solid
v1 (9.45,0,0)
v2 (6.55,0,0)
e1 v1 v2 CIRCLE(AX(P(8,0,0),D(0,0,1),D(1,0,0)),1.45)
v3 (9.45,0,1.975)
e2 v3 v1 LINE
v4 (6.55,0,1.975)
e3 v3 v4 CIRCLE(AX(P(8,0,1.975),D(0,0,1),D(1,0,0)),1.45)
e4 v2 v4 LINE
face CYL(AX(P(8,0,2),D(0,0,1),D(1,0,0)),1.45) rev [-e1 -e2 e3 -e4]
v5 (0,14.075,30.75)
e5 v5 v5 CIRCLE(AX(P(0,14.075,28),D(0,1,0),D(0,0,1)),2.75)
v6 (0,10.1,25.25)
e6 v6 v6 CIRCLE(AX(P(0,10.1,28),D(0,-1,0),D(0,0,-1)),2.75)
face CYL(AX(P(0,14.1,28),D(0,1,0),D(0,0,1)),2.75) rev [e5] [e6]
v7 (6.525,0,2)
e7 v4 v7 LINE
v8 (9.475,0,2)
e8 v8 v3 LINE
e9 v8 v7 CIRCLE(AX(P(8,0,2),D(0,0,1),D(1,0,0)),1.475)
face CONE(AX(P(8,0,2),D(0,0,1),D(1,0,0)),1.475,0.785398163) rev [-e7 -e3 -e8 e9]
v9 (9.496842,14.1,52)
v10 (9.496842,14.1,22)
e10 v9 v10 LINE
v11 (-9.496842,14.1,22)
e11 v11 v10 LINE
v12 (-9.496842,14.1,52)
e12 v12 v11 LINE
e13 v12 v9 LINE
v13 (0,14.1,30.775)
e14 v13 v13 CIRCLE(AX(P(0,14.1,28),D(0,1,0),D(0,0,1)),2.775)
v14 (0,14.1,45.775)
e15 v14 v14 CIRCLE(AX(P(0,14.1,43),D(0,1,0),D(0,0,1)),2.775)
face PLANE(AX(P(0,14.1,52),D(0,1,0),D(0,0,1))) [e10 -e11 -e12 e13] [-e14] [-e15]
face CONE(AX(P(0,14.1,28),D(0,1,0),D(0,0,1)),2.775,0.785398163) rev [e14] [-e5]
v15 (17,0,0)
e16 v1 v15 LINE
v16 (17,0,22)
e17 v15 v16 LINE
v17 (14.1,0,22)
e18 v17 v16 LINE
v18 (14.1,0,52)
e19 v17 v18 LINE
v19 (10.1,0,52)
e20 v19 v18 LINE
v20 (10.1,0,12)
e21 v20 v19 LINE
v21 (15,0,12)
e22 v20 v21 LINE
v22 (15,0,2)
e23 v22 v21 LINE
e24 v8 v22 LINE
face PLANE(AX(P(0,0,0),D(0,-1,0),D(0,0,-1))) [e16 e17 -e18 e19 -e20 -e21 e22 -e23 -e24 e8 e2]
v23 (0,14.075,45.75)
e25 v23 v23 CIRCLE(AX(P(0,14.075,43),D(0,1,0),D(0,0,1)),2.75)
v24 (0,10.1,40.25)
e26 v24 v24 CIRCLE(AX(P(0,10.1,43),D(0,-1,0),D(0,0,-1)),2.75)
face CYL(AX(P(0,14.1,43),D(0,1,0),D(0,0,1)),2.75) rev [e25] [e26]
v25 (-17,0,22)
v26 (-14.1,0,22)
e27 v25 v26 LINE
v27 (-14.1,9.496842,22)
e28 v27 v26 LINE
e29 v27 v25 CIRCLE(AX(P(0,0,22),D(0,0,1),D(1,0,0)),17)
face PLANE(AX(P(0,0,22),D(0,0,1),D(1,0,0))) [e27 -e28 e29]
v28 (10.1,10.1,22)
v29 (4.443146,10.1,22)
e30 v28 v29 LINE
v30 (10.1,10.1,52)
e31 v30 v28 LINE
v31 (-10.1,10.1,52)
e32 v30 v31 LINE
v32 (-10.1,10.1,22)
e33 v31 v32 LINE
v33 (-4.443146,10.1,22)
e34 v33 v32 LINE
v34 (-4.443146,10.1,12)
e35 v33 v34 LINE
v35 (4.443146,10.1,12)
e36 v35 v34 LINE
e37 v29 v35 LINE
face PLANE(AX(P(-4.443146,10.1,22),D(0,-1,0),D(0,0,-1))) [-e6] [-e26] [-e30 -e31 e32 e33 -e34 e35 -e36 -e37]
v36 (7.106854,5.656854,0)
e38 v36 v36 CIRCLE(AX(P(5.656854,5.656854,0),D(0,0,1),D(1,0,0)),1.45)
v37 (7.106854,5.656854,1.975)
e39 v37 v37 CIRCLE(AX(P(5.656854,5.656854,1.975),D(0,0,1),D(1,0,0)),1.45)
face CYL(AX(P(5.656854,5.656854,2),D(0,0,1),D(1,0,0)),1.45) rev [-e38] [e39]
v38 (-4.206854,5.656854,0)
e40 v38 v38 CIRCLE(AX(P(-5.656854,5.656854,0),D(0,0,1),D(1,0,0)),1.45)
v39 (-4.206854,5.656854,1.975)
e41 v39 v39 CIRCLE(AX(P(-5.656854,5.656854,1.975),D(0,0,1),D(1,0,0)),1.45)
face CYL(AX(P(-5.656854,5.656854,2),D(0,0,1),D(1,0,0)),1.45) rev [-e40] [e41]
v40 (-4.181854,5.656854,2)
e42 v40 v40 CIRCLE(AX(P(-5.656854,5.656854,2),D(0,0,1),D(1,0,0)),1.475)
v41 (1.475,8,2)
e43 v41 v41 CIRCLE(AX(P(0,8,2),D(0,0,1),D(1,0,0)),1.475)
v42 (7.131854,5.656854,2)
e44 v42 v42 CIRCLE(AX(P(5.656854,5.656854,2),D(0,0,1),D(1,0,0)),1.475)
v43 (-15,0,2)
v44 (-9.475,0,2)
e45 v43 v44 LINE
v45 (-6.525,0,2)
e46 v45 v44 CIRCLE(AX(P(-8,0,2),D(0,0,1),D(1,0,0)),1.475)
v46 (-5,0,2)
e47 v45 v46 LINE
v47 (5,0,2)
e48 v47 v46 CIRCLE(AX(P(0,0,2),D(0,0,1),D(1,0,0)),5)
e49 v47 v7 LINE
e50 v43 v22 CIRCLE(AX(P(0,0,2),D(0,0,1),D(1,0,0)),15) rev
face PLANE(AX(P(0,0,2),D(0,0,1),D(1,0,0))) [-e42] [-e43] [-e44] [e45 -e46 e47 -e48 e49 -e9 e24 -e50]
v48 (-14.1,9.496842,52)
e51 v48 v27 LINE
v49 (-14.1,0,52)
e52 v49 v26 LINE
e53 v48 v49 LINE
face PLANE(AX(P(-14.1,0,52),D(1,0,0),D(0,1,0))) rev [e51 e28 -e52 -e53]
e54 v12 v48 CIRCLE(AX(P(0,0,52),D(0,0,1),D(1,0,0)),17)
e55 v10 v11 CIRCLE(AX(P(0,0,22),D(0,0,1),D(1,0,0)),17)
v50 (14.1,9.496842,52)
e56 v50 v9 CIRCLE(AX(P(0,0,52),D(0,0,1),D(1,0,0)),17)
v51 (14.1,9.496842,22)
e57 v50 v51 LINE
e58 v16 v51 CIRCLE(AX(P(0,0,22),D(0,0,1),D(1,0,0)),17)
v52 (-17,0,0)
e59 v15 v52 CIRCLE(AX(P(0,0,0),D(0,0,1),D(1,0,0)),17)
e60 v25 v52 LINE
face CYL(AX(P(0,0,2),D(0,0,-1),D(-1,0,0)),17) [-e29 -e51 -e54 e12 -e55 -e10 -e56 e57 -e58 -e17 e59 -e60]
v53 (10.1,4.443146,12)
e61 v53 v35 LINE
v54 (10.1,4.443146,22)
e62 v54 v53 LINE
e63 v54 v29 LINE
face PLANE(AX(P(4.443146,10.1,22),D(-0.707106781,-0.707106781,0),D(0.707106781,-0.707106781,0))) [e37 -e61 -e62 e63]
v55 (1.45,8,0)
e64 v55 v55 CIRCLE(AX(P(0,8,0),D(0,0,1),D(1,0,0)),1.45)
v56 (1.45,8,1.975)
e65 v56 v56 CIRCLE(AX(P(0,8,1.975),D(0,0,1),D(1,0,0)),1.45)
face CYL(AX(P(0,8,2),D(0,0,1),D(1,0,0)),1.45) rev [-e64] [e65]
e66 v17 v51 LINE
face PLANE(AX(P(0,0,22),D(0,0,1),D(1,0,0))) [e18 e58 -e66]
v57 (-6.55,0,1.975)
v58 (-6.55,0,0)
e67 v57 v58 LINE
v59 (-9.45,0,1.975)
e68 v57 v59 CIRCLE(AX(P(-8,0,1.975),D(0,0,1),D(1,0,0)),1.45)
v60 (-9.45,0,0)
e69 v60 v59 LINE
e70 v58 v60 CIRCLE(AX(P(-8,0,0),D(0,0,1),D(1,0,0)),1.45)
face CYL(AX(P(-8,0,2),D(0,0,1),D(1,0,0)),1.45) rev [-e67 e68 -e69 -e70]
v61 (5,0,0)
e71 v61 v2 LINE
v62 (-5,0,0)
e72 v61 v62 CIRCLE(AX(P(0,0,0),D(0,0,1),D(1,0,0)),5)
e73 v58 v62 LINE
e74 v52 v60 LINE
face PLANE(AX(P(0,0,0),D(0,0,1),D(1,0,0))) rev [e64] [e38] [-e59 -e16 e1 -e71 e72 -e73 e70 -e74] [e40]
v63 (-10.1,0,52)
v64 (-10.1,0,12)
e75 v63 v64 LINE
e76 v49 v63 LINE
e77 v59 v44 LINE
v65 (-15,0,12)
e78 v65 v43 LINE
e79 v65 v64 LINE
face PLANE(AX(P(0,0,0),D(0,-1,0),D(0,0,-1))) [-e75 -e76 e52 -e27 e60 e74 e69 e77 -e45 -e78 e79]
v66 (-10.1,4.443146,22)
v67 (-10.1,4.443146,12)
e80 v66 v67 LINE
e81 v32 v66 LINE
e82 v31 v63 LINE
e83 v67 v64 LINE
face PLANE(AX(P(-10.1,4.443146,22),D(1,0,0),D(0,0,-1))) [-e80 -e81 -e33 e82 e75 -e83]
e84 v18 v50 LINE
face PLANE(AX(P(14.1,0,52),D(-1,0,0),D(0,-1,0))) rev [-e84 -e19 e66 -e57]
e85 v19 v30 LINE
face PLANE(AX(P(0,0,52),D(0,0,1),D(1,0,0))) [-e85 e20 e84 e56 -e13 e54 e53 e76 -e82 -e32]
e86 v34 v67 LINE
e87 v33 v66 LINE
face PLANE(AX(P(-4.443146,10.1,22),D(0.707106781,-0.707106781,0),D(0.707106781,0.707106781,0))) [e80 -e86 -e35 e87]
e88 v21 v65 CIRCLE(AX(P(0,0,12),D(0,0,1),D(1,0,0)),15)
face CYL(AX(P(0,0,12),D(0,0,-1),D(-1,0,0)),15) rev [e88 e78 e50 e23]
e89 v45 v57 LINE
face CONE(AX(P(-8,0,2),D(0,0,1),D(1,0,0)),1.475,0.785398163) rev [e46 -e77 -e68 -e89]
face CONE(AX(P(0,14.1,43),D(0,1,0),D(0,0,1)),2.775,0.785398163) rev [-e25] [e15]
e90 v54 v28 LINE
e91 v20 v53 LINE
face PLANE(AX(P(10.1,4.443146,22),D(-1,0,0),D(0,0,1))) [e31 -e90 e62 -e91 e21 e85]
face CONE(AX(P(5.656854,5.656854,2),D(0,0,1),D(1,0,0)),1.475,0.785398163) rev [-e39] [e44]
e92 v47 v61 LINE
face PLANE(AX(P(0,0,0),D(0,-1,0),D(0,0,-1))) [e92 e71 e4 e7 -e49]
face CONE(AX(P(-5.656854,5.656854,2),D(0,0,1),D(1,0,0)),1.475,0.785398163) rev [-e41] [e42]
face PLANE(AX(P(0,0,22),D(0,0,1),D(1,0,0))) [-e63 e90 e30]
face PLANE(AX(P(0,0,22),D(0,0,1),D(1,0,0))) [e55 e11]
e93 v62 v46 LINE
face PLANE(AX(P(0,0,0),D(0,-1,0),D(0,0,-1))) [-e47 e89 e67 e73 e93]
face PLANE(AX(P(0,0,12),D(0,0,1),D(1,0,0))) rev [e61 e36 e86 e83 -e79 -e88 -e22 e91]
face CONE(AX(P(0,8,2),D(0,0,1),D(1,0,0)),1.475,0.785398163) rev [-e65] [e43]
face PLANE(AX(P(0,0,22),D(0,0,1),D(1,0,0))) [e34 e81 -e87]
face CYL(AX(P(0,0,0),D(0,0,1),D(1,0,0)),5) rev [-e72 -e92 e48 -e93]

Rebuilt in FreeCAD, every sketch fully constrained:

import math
import FreeCAD as App
import Part
import Sketcher

V = App.Vector


def add_polygon(sketch, points):
    """Adds a closed chain of lines whose ends are joined by coincident constraints."""
    first, n = sketch.GeometryCount, len(points)
    for a, b in zip(points, points[1:] + points[:1]):
        sketch.addGeometry(Part.LineSegment(App.Vector(*a, 0), App.Vector(*b, 0)), False)
    for i in range(n):
        sketch.addConstraint(Sketcher.Constraint("Coincident", first + i, 2, first + (i + 1) % n, 1))

doc = App.newDocument("Part")
body = doc.addObject("PartDesign::Body", "Body")

sketch1 = body.newObject("Sketcher::SketchObject", "Sketch")
sketch1.AttachmentSupport = (doc.getObject("XY_Plane"), [""])
sketch1.MapMode = "FlatFace"
sketch1.addGeometry(Part.Circle(V(0, 0, 0), V(0, 0, 1), 17), False)
sketch1.addConstraint(Sketcher.Constraint("Coincident", 0, 3, -1, 1))
sketch1.addConstraint(Sketcher.Constraint("Diameter", 0, 34.0))
pad1 = body.newObject("PartDesign::Pad", "Pad")
pad1.Profile = sketch1
pad1.Length = 2

sketch2 = body.newObject("Sketcher::SketchObject", "Sketch001")
sketch2.AttachmentSupport = (doc.getObject("XY_Plane"), [""])
sketch2.MapMode = "FlatFace"
sketch2.AttachmentOffset = App.Placement(V(0, 0, 2), App.Rotation())
sketch2.addGeometry(Part.Circle(V(0, 0, 0), V(0, 0, 1), 17), False)
sketch2.addGeometry(Part.Circle(V(0, 0, 0), V(0, 0, 1), 15), False)
sketch2.addConstraint(Sketcher.Constraint("Coincident", 0, 3, -1, 1))
sketch2.addConstraint(Sketcher.Constraint("Coincident", 1, 3, -1, 1))
sketch2.addConstraint(Sketcher.Constraint("Diameter", 0, 34.0))
sketch2.addConstraint(Sketcher.Constraint("Diameter", 1, 30.0))
pad2 = body.newObject("PartDesign::Pad", "Pad001")
pad2.Profile = sketch2
pad2.Length = 10

sketch3 = body.newObject("Sketcher::SketchObject", "Sketch002")
sketch3.AttachmentSupport = (doc.getObject("XY_Plane"), [""])
sketch3.MapMode = "FlatFace"
sketch3.AttachmentOffset = App.Placement(V(0, 0, 2), App.Rotation())
sketch3.addGeometry(Part.Circle(V(0, 0, 0), V(0, 0, 1), 5), False)
sketch3.addConstraint(Sketcher.Constraint("Coincident", 0, 3, -1, 1))
sketch3.addConstraint(Sketcher.Constraint("Diameter", 0, 10.0))
pocket1 = body.newObject("PartDesign::Pocket", "Pocket")
pocket1.Profile = sketch3
pocket1.Type = "ThroughAll"

sketch4 = body.newObject("Sketcher::SketchObject", "Sketch003")
sketch4.AttachmentSupport = (doc.getObject("XY_Plane"), [""])
sketch4.MapMode = "FlatFace"
sketch4.AttachmentOffset = App.Placement(V(0, 0, 12), App.Rotation())
sketch4.addGeometry(Part.Circle(V(0, 0, 0), V(0, 0, 1), 17), False)
add_polygon(sketch4, [(-10.1, 4.443146), (-4.443146, 10.1), (4.443146, 10.1), (10.1, 4.443146), (10.1, -4.443146), (4.443146, -10.1), (-4.443146, -10.1), (-10.1, -4.443146)])
sketch4.addConstraint(Sketcher.Constraint("Horizontal", 2))
sketch4.addConstraint(Sketcher.Constraint("Vertical", 4))
sketch4.addConstraint(Sketcher.Constraint("Horizontal", 6))
sketch4.addConstraint(Sketcher.Constraint("Vertical", 8))
sketch4.addConstraint(Sketcher.Constraint("Coincident", 0, 3, -1, 1))
sketch4.addConstraint(Sketcher.Constraint("Symmetric", 1, 2, 5, 2, -1, 1))
sketch4.addConstraint(Sketcher.Constraint("Symmetric", 3, 2, 7, 2, -1, 1))
sketch4.addConstraint(Sketcher.Constraint("Perpendicular", 1, 3))
sketch4.addConstraint(Sketcher.Constraint("Perpendicular", 3, 5))
sketch4.addConstraint(Sketcher.Constraint("Perpendicular", 5, 7))
sketch4.addConstraint(Sketcher.Constraint("Horizontal", 4, 2, 7, 2))
sketch4.addConstraint(Sketcher.Constraint("Vertical", 2, 2, 5, 2))
sketch4.addConstraint(Sketcher.Constraint("Equal", 6, 4))
sketch4.addConstraint(Sketcher.Constraint("Diameter", 0, 34.0))
sketch4.addConstraint(Sketcher.Constraint("Distance", 1, 8.0))
sketch4.addConstraint(Sketcher.Constraint("DistanceY", -1, 1, 1, 2, 10.1))
pad3 = body.newObject("PartDesign::Pad", "Pad002")
pad3.Profile = sketch4
pad3.Length = 10

sketch5 = body.newObject("Sketcher::SketchObject", "Sketch004")
sketch5.AttachmentSupport = (doc.getObject("XY_Plane"), [""])
sketch5.MapMode = "FlatFace"
sketch5.AttachmentOffset = App.Placement(V(0, 0, 22), App.Rotation())
sketch5.addGeometry(Part.LineSegment(V(9.496842, 14.1, 0), V(-9.496842, 14.1, 0)), False)
sketch5.addGeometry(Part.ArcOfCircle(Part.Circle(V(0, 0, 0), V(0, 0, 1), 17), math.radians(123.961641), math.radians(146.038359)), False)
sketch5.addGeometry(Part.LineSegment(V(-14.1, 9.496842, 0), V(-14.1, -9.496843, 0)), False)
sketch5.addGeometry(Part.ArcOfCircle(Part.Circle(V(0, 0, 0), V(0, 0, 1), 17.000001), math.radians(-146.038357), math.radians(-123.961643)), False)
sketch5.addGeometry(Part.LineSegment(V(-9.496843, -14.1, 0), V(9.496842, -14.1, 0)), False)
sketch5.addGeometry(Part.ArcOfCircle(Part.Circle(V(0, 0, 0), V(0, 0, 1), 17), math.radians(-56.038359), math.radians(-33.961641)), False)
sketch5.addGeometry(Part.LineSegment(V(14.1, -9.496842, 0), V(14.1, 9.496842, 0)), False)
sketch5.addGeometry(Part.ArcOfCircle(Part.Circle(V(0, 0, 0), V(0, 0, 1), 17), math.radians(33.961641), math.radians(56.038359)), False)
add_polygon(sketch5, [(10.1, -10.1), (-10.1, -10.1), (-10.1, 10.1), (10.1, 10.1)])
sketch5.addConstraint(Sketcher.Constraint("Coincident", 0, 2, 1, 1))
sketch5.addConstraint(Sketcher.Constraint("Coincident", 1, 2, 2, 1))
sketch5.addConstraint(Sketcher.Constraint("Coincident", 2, 2, 3, 1))
sketch5.addConstraint(Sketcher.Constraint("Coincident", 3, 2, 4, 1))
sketch5.addConstraint(Sketcher.Constraint("Coincident", 4, 2, 5, 1))
sketch5.addConstraint(Sketcher.Constraint("Coincident", 5, 2, 6, 1))
sketch5.addConstraint(Sketcher.Constraint("Coincident", 6, 2, 7, 1))
sketch5.addConstraint(Sketcher.Constraint("Coincident", 7, 2, 0, 1))
sketch5.addConstraint(Sketcher.Constraint("Horizontal", 0))
sketch5.addConstraint(Sketcher.Constraint("Vertical", 2))
sketch5.addConstraint(Sketcher.Constraint("Horizontal", 4))
sketch5.addConstraint(Sketcher.Constraint("Vertical", 6))
sketch5.addConstraint(Sketcher.Constraint("Horizontal", 8))
sketch5.addConstraint(Sketcher.Constraint("Vertical", 9))
sketch5.addConstraint(Sketcher.Constraint("Horizontal", 10))
sketch5.addConstraint(Sketcher.Constraint("Vertical", 11))
sketch5.addConstraint(Sketcher.Constraint("Coincident", 1, 3, -1, 1))
sketch5.addConstraint(Sketcher.Constraint("Coincident", 3, 3, -1, 1))
sketch5.addConstraint(Sketcher.Constraint("Coincident", 5, 3, -1, 1))
sketch5.addConstraint(Sketcher.Constraint("Coincident", 7, 3, -1, 1))
sketch5.addConstraint(Sketcher.Constraint("Equal", 1, 3))
sketch5.addConstraint(Sketcher.Constraint("Equal", 3, 5))
sketch5.addConstraint(Sketcher.Constraint("Equal", 5, 7))
sketch5.addConstraint(Sketcher.Constraint("Symmetric", 8, 2, 10, 2, -1, 1))
sketch5.addConstraint(Sketcher.Constraint("Horizontal", 2, 2, 5, 2))
sketch5.addConstraint(Sketcher.Constraint("Vertical", 0, 2, 3, 2))
sketch5.addConstraint(Sketcher.Constraint("Equal", 4, 2))
sketch5.addConstraint(Sketcher.Constraint("Equal", 10, 9))
sketch5.addConstraint(Sketcher.Constraint("Radius", 1, 17.0))
sketch5.addConstraint(Sketcher.Constraint("DistanceX", 8, 2, 8, 1, 20.2))
sketch5.addConstraint(Sketcher.Constraint("DistanceY", 3, 2, 8, 2, 4.0))
pad4 = body.newObject("PartDesign::Pad", "Pad003")
pad4.Profile = sketch5
pad4.Length = 30

sketch6 = body.newObject("Sketcher::SketchObject", "Sketch005")
sketch6.AttachmentSupport = (doc.getObject("XZ_Plane"), [""])
sketch6.MapMode = "FlatFace"
sketch6.AttachmentOffset = App.Placement(V(0, 0, -14.1), App.Rotation())
sketch6.addGeometry(Part.Circle(V(0, 28, 0), V(0, 0, 1), 2.75), False)
sketch6.addGeometry(Part.Circle(V(0, 43, 0), V(0, 0, 1), 2.75), False)
sketch6.addConstraint(Sketcher.Constraint("Equal", 0, 1))
sketch6.addConstraint(Sketcher.Constraint("PointOnObject", 0, 3, -2))
sketch6.addConstraint(Sketcher.Constraint("PointOnObject", 1, 3, -2))
sketch6.addConstraint(Sketcher.Constraint("Diameter", 0, 5.5))
sketch6.addConstraint(Sketcher.Constraint("DistanceY", -1, 1, 0, 3, 28.0))
sketch6.addConstraint(Sketcher.Constraint("DistanceY", -1, 1, 1, 3, 43.0))
doc.recompute()
hole = body.newObject("PartDesign::Hole", "Hole")
hole.Profile = sketch6
hole.ThreadType = "None"
hole.Diameter = 5.5
hole.DepthType = "ThroughAll"
hole.HoleCutType = "Countersink"
hole.HoleCutDiameter = 5.55
hole.HoleCutCountersinkAngle = 90
hole.Reversed = True

sketch7 = body.newObject("Sketcher::SketchObject", "Sketch006")
sketch7.AttachmentSupport = (doc.getObject("XY_Plane"), [""])
sketch7.MapMode = "FlatFace"
sketch7.AttachmentOffset = App.Placement(V(0, 0, 2), App.Rotation())
sketch7.addGeometry(Part.Circle(V(0, 8, 0), V(0, 0, 1), 1.45), False)
sketch7.addGeometry(Part.Circle(V(5.656854, 5.656854, 0), V(0, 0, 1), 1.45), False)
sketch7.addGeometry(Part.Circle(V(8, 0, 0), V(0, 0, 1), 1.45), False)
sketch7.addGeometry(Part.Circle(V(5.656854, -5.656854, 0), V(0, 0, 1), 1.45), False)
sketch7.addGeometry(Part.Circle(V(0, -8, 0), V(0, 0, 1), 1.45), False)
sketch7.addGeometry(Part.Circle(V(-5.656854, -5.656854, 0), V(0, 0, 1), 1.45), False)
sketch7.addGeometry(Part.Circle(V(-8, 0, 0), V(0, 0, 1), 1.45), False)
sketch7.addGeometry(Part.Circle(V(-5.656854, 5.656854, 0), V(0, 0, 1), 1.45), False)
sketch7.addConstraint(Sketcher.Constraint("Equal", 0, 1))
sketch7.addConstraint(Sketcher.Constraint("Equal", 1, 2))
sketch7.addConstraint(Sketcher.Constraint("Equal", 2, 3))
sketch7.addConstraint(Sketcher.Constraint("Equal", 3, 4))
sketch7.addConstraint(Sketcher.Constraint("Equal", 4, 5))
sketch7.addConstraint(Sketcher.Constraint("Equal", 5, 6))
sketch7.addConstraint(Sketcher.Constraint("Equal", 6, 7))
sketch7.addConstraint(Sketcher.Constraint("Symmetric", 0, 3, 4, 3, -1, 1))
sketch7.addConstraint(Sketcher.Constraint("Symmetric", 1, 3, 5, 3, -1, 1))
sketch7.addConstraint(Sketcher.Constraint("Symmetric", 2, 3, 6, 3, -1, 1))
sketch7.addConstraint(Sketcher.Constraint("Symmetric", 3, 3, 7, 3, -1, 1))
sketch7.addConstraint(Sketcher.Constraint("Symmetric", 3, 3, 5, 3, -2))
sketch7.addConstraint(Sketcher.Constraint("PointOnObject", 0, 3, -2))
sketch7.addConstraint(Sketcher.Constraint("PointOnObject", 2, 3, -1))
sketch7.addConstraint(Sketcher.Constraint("Diameter", 0, 2.9))
sketch7.addConstraint(Sketcher.Constraint("DistanceY", -1, 1, 0, 3, 8.0))
sketch7.addConstraint(Sketcher.Constraint("DistanceX", -1, 1, 2, 3, 8.0))
sketch7.addConstraint(Sketcher.Constraint("DistanceY", 3, 3, 1, 3, 11.313708))
sketch7.addConstraint(Sketcher.Constraint("DistanceX", 5, 3, 3, 3, 11.313708))
doc.recompute()
hole2 = body.newObject("PartDesign::Hole", "Hole001")
hole2.Profile = sketch7
hole2.ThreadType = "None"
hole2.Diameter = 2.9
hole2.DepthType = "ThroughAll"
hole2.HoleCutType = "Countersink"
hole2.HoleCutDiameter = 2.95
hole2.HoleCutCountersinkAngle = 90

sketch8 = body.newObject("Sketcher::SketchObject", "Sketch007")
sketch8.AttachmentSupport = (doc.getObject("XZ_Plane"), [""])
sketch8.MapMode = "FlatFace"
add_polygon(sketch8, [(-20, 62.5), (20, 62.5), (20, -2.5), (-20, -2.5)])
sketch8.addConstraint(Sketcher.Constraint("Horizontal", 0))
sketch8.addConstraint(Sketcher.Constraint("Vertical", 1))
sketch8.addConstraint(Sketcher.Constraint("Horizontal", 2))
sketch8.addConstraint(Sketcher.Constraint("Vertical", 3))
sketch8.addConstraint(Sketcher.Constraint("DistanceX", 0, 1, 0, 2, 40.0))
sketch8.addConstraint(Sketcher.Constraint("DistanceY", 1, 2, 1, 1, 65.0))
sketch8.addConstraint(Sketcher.Constraint("DistanceX", -1, 1, 0, 2, 20.0))
sketch8.addConstraint(Sketcher.Constraint("DistanceY", -1, 1, 0, 2, 62.5))
pocket2 = body.newObject("PartDesign::Pocket", "Pocket001")
pocket2.Profile = sketch8
pocket2.Type = "ThroughAll"
pocket2.Reversed = True

doc.recompute()
